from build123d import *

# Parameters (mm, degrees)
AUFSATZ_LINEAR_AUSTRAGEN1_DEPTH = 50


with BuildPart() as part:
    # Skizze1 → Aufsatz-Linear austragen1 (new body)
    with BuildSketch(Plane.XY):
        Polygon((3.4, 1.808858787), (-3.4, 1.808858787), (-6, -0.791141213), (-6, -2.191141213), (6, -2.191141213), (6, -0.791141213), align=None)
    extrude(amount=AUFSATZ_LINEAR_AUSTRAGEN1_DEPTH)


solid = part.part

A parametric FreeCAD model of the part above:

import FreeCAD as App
import Part
import Sketcher

V = App.Vector

doc = App.newDocument("Part")
body = doc.addObject("PartDesign::Body", "Body")

# Sketch on XY plane
sketch1 = doc.addObject("Sketcher::SketchObject", "Sketch")
body.addObject(sketch1)
sketch1.AttachmentSupport = (doc.XY_Plane, [""])
sketch1.MapMode = "FlatFace"
sketch1.addGeometry(Part.LineSegment(V(3.4, 1.8, 0), V(-3.4, 1.8, 0)), False)
sketch1.addGeometry(Part.LineSegment(V(-3.4, 1.8, 0), V(-6, -0.8, 0)), False)
sketch1.addGeometry(Part.LineSegment(V(-6, -0.8, 0), V(-6, -2.2, 0)), False)
sketch1.addGeometry(Part.LineSegment(V(-6, -2.2, 0), V(6, -2.2, 0)), False)
sketch1.addGeometry(Part.LineSegment(V(6, -2.2, 0), V(6, -0.8, 0)), False)
sketch1.addGeometry(Part.LineSegment(V(6, -0.8, 0), V(3.4, 1.8, 0)), False)
sketch1.addConstraint(Sketcher.Constraint("Coincident", 0, 2, 1, 1))
sketch1.addConstraint(Sketcher.Constraint("Coincident", 1, 2, 2, 1))
sketch1.addConstraint(Sketcher.Constraint("Coincident", 2, 2, 3, 1))
sketch1.addConstraint(Sketcher.Constraint("Coincident", 3, 2, 4, 1))
sketch1.addConstraint(Sketcher.Constraint("Coincident", 4, 2, 5, 1))
sketch1.addConstraint(Sketcher.Constraint("Coincident", 5, 2, 0, 1))
sketch1.addConstraint(Sketcher.Constraint("Horizontal", 0))
sketch1.addConstraint(Sketcher.Constraint("Vertical", 2))
sketch1.addConstraint(Sketcher.Constraint("Horizontal", 3))
sketch1.addConstraint(Sketcher.Constraint("Vertical", 4))
sketch1.addConstraint(Sketcher.Constraint("Symmetric", 1, 2, 4, 2, -2))
sketch1.addConstraint(Sketcher.Constraint("Perpendicular", 1, 5))
sketch1.addConstraint(Sketcher.Constraint("Equal", 1, 5))
sketch1.addConstraint(Sketcher.Constraint("DistanceX", 3, 1, 3, 2, 12.0))
sketch1.addConstraint(Sketcher.Constraint("DistanceX", 0, 2, 0, 1, 6.8))
sketch1.addConstraint(Sketcher.Constraint("DistanceY", 2, 2, 2, 1, 1.4))
sketch1.addConstraint(Sketcher.Constraint("DistanceY", -1, 1, 0, 2, 1.808859))
pad1 = doc.addObject("PartDesign::Pad", "Pad")
body.addObject(pad1)
pad1.Profile = sketch1
pad1.Length = 50

doc.recompute()
